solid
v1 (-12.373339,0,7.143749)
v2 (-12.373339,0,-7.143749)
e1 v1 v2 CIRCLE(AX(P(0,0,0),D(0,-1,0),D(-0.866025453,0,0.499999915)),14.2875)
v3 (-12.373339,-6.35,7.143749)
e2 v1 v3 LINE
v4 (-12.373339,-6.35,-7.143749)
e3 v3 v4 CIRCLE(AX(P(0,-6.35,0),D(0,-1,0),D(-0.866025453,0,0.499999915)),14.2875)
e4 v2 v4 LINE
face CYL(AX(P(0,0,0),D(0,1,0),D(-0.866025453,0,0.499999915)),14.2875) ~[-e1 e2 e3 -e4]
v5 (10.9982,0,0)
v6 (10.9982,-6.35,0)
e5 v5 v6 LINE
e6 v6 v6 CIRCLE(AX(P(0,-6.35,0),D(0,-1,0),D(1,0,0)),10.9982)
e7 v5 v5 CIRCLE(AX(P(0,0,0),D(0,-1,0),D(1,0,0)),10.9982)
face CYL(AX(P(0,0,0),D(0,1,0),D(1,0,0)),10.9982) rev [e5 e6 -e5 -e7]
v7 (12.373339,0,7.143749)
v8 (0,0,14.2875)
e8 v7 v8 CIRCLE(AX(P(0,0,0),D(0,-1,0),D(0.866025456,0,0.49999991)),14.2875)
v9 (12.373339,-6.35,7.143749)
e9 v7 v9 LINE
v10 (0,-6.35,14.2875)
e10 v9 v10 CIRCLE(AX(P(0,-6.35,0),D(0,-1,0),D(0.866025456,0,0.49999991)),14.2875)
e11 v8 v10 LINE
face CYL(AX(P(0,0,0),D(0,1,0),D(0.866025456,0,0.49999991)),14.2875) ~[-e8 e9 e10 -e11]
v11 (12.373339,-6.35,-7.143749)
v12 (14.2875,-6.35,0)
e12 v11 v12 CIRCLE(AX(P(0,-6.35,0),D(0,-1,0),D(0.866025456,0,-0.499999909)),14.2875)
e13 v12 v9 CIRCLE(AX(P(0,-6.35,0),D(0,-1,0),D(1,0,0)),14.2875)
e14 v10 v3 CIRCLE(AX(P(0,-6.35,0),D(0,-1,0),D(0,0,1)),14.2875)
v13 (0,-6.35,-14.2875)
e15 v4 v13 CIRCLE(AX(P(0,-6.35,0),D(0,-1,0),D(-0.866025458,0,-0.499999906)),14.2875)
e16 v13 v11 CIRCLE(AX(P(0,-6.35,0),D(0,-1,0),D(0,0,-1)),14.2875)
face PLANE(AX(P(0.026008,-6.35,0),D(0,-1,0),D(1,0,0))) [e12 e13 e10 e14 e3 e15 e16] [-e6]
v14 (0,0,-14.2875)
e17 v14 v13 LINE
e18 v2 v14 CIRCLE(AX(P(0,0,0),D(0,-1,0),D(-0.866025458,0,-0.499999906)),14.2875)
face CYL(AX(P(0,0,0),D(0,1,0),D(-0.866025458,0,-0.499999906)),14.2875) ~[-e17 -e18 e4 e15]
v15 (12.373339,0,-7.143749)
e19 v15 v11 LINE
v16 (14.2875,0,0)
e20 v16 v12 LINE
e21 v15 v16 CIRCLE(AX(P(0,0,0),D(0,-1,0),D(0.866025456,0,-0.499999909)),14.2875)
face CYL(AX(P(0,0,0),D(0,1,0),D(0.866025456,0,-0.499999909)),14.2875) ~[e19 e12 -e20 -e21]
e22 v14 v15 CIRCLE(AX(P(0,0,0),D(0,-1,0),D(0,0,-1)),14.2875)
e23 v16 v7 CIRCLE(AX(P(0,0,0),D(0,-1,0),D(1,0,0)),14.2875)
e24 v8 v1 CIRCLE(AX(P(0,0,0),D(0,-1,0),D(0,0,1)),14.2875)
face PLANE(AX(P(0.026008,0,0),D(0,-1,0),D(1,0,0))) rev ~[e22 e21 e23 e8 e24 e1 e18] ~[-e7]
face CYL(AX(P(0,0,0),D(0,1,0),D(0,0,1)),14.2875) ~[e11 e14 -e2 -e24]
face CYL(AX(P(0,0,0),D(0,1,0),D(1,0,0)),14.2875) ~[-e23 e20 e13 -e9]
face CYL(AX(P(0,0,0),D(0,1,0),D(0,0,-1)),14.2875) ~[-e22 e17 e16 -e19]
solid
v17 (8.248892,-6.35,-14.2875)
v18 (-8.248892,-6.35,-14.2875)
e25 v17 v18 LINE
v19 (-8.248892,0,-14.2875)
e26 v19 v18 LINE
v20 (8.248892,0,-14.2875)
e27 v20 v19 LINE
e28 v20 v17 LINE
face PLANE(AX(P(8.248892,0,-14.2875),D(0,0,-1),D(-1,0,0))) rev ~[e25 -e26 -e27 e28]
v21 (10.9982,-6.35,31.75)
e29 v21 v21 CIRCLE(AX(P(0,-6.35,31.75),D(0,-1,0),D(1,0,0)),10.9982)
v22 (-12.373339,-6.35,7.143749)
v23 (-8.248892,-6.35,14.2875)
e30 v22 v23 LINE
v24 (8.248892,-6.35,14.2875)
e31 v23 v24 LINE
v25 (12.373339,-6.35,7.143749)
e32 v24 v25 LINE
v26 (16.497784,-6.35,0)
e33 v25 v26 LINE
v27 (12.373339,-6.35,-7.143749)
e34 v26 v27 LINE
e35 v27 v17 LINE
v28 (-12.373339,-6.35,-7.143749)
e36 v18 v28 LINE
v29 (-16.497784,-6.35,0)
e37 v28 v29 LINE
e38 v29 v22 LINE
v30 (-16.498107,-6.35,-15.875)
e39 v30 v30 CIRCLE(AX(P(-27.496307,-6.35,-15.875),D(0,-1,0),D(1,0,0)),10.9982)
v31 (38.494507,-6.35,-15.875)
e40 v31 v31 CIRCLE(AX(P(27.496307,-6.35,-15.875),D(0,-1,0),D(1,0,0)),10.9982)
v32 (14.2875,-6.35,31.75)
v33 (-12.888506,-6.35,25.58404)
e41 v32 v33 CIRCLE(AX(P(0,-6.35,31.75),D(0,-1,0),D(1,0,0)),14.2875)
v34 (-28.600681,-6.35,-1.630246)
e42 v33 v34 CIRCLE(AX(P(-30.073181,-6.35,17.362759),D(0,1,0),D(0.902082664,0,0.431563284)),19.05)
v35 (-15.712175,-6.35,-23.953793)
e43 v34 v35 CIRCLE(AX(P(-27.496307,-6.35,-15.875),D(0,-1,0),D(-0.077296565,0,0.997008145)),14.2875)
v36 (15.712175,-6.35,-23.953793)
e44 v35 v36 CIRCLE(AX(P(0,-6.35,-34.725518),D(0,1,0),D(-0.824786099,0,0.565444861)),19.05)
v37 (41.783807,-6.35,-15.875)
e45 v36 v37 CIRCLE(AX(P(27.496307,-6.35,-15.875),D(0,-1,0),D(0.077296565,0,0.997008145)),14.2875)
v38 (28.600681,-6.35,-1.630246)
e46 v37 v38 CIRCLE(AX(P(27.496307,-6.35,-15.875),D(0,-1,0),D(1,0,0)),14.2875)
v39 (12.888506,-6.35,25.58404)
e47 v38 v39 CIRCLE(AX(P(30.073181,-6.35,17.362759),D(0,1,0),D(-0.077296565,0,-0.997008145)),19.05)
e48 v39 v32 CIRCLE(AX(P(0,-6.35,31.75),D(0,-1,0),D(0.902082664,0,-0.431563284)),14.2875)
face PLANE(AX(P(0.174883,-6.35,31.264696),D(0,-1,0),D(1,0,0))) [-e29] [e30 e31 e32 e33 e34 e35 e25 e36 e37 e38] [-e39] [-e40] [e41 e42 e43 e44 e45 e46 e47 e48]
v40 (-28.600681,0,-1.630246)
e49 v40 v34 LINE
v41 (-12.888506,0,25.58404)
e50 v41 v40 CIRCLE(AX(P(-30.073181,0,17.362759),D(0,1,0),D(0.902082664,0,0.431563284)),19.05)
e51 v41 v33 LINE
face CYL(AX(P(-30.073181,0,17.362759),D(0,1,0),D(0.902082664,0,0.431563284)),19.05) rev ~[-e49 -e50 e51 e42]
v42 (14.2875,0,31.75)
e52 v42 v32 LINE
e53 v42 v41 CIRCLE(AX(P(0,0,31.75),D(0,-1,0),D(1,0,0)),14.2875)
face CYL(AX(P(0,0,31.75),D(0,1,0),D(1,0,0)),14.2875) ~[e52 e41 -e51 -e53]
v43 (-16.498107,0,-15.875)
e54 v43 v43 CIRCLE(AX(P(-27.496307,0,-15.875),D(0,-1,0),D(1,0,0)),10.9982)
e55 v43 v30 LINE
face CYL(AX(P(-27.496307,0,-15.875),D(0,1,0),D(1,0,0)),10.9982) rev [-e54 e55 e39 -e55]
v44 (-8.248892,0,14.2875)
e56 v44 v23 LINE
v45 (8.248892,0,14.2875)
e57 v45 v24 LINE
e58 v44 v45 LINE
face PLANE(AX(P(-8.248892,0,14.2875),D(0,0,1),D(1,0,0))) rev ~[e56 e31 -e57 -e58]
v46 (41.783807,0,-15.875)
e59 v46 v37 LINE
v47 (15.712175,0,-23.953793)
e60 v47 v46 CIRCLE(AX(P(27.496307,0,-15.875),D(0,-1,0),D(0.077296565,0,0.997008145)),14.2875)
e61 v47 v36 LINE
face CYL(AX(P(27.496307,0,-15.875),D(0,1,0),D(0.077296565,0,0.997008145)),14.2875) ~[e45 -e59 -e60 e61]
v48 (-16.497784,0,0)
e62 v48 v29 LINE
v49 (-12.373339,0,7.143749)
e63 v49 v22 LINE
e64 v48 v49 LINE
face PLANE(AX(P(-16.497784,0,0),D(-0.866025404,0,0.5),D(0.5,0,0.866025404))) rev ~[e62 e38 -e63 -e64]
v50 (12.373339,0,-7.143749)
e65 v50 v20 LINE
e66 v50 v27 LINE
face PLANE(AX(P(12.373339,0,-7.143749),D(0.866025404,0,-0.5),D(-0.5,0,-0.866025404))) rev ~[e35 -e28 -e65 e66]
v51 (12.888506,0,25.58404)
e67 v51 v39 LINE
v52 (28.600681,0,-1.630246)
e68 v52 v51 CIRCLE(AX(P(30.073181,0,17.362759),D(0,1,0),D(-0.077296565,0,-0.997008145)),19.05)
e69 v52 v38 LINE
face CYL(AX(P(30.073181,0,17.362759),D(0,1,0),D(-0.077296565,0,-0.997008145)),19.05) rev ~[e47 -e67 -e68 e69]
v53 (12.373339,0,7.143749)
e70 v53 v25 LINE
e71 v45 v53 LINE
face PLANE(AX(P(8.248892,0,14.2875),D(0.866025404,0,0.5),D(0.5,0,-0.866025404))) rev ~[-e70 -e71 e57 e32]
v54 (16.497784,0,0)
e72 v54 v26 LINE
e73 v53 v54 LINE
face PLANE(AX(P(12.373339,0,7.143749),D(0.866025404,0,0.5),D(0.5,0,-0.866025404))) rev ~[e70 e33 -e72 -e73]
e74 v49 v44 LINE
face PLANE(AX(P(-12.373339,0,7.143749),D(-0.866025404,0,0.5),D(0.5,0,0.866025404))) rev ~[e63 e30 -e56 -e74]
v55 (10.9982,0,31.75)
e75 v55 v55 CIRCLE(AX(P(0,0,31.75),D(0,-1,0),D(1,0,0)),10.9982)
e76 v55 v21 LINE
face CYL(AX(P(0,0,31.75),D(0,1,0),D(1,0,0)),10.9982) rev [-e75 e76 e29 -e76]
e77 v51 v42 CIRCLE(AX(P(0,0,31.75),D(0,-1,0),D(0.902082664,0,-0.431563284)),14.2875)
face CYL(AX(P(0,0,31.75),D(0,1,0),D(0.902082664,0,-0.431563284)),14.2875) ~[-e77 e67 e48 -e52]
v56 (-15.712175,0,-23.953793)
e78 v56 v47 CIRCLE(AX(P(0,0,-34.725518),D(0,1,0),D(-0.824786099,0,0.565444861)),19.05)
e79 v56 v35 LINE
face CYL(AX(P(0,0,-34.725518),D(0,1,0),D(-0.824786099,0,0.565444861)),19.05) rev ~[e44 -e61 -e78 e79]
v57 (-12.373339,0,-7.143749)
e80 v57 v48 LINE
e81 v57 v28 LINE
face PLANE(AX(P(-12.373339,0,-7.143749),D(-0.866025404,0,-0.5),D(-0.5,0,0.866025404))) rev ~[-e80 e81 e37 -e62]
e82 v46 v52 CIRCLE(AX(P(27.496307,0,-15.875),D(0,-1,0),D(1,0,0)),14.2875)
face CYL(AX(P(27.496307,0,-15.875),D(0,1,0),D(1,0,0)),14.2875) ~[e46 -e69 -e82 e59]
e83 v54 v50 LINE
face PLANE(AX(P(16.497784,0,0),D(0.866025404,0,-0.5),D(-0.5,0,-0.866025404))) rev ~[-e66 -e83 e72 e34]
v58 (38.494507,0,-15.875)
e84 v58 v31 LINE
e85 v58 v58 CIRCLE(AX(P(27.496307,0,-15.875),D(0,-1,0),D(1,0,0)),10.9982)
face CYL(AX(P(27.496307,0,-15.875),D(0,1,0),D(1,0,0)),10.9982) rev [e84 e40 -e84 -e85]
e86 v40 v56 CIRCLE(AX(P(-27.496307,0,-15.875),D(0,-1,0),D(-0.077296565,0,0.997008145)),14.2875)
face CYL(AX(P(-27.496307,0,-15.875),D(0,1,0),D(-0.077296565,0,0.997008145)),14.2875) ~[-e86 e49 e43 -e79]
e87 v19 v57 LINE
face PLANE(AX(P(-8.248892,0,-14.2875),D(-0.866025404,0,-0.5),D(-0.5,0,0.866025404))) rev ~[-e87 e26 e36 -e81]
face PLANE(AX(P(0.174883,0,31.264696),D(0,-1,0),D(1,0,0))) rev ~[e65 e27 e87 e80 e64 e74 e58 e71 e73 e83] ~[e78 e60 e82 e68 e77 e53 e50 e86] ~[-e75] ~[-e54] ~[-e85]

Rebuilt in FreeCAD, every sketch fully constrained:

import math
import FreeCAD as App
import Part
import Sketcher

V = App.Vector
Q = App.Units.Quantity

doc = App.newDocument("Part")
body = doc.addObject("PartDesign::Body", "Body")

# Sketch on XZ plane
sketch1 = body.newObject("Sketcher::SketchObject", "Sketch")
sketch1.AttachmentSupport = (doc.getObject("XZ_Plane"), [""])
sketch1.MapMode = "FlatFace"
sketch1.addGeometry([
    Part.ArcOfCircle(Part.Circle(V(0, 32, 0), V(0, 0, 1), 14), math.radians(-26), math.radians(0)),  # 0
    Part.ArcOfCircle(Part.Circle(V(0, 32, 0), V(0, 0, 1), 14), math.radians(0), math.radians(206)),  # 1
    Part.ArcOfCircle(Part.Circle(V(-30, 17, 0), V(0, 0, 1), 19), math.radians(-86), math.radians(26)),  # 2
    Part.ArcOfCircle(Part.Circle(V(-27, -16, 0), V(0, 0, 1), 14), math.radians(94), math.radians(326)),  # 3
    Part.ArcOfCircle(Part.Circle(V(0, -35, 0), V(0, 0, 1), 19), math.radians(34), math.radians(146)),  # 4
    Part.ArcOfCircle(Part.Circle(V(27, -16, 0), V(0, 0, 1), 14), math.radians(-146), math.radians(0)),  # 5
    Part.ArcOfCircle(Part.Circle(V(27, -16, 0), V(0, 0, 1), 14), math.radians(0), math.radians(86)),  # 6
    Part.ArcOfCircle(Part.Circle(V(30, 17, 0), V(0, 0, 1), 19), math.radians(154), math.radians(266)),  # 7
    Part.Circle(V(-27, -16, 0), V(0, 0, 1), 11),  # 8
    Part.LineSegment(V(-8, 14, 0), V(8, 14, 0)),  # 9
    Part.LineSegment(V(8, 14, 0), V(12, 7, 0)),  # 10
    Part.LineSegment(V(12, 7, 0), V(16, 0, 0)),  # 11
    Part.LineSegment(V(16, 0, 0), V(12, -7, 0)),  # 12
    Part.LineSegment(V(12, -7, 0), V(8, -14, 0)),  # 13
    Part.LineSegment(V(8, -14, 0), V(-8, -14, 0)),  # 14
    Part.LineSegment(V(-8, -14, 0), V(-12, -7, 0)),  # 15
    Part.LineSegment(V(-12, -7, 0), V(-16, 0, 0)),  # 16
    Part.LineSegment(V(-16, 0, 0), V(-12, 7, 0)),  # 17
    Part.LineSegment(V(-12, 7, 0), V(-8, 14, 0)),  # 18
    Part.Circle(V(27, -16, 0), V(0, 0, 1), 11),  # 19
    Part.Circle(V(0, 32, 0), V(0, 0, 1), 11),  # 20
], False)
sketch1.addConstraint([
    Sketcher.Constraint("Tangent", 0, 2, 1, 1),
    Sketcher.Constraint("Tangent", 1, 2, 2, 2),
    Sketcher.Constraint("Tangent", 2, 1, 3, 1),
    Sketcher.Constraint("Tangent", 3, 2, 4, 2),
    Sketcher.Constraint("Tangent", 4, 1, 5, 1),
    Sketcher.Constraint("Tangent", 5, 2, 6, 1),
    Sketcher.Constraint("Tangent", 6, 2, 7, 2),
    Sketcher.Constraint("Tangent", 7, 1, 0, 1),
    Sketcher.Constraint("Coincident", 9, 2, 10, 1),
    Sketcher.Constraint("Coincident", 10, 2, 11, 1),
    Sketcher.Constraint("Coincident", 11, 2, 12, 1),
    Sketcher.Constraint("Coincident", 12, 2, 13, 1),
    Sketcher.Constraint("Coincident", 13, 2, 14, 1),
    Sketcher.Constraint("Coincident", 14, 2, 15, 1),
    Sketcher.Constraint("Coincident", 15, 2, 16, 1),
    Sketcher.Constraint("Coincident", 16, 2, 17, 1),
    Sketcher.Constraint("Coincident", 17, 2, 18, 1),
    Sketcher.Constraint("Coincident", 18, 2, 9, 1),
    Sketcher.Constraint("Horizontal", 9),
    Sketcher.Constraint("Horizontal", 14),
    Sketcher.Constraint("Coincident", 8, 3, 3, 3),
    Sketcher.Constraint("Coincident", 19, 3, 5, 3),
    Sketcher.Constraint("Coincident", 20, 3, 0, 3),
    Sketcher.Constraint("Equal", 0, 1),
    Sketcher.Constraint("Equal", 1, 3),
    Sketcher.Constraint("Equal", 2, 4),
    Sketcher.Constraint("Equal", 3, 5),
    Sketcher.Constraint("Equal", 5, 6),
    Sketcher.Constraint("Equal", 4, 7),
    Sketcher.Constraint("Equal", 8, 19),
    Sketcher.Constraint("Equal", 19, 20),
    Sketcher.Constraint("Symmetric", 9, 2, 14, 2, -1, 1),
    Sketcher.Constraint("Symmetric", 10, 2, 15, 2, -1, 1),
    Sketcher.Constraint("Symmetric", 11, 2, 16, 2, -1, 1),
    Sketcher.Constraint("Symmetric", 12, 2, 17, 2, -1, 1),
    Sketcher.Constraint("Symmetric", 3, 3, 5, 3, -2),
    Sketcher.Constraint("Symmetric", 12, 2, 15, 2, -2),
    Sketcher.Constraint("PointOnObject", 0, 3, -2),
    Sketcher.Constraint("PointOnObject", 11, 2, -1),
    Sketcher.Constraint("Parallel", 10, 11),
    Sketcher.Constraint("Parallel", 12, 13),
    Sketcher.Constraint("Parallel", 17, 18),
    Sketcher.Constraint("Horizontal", 20, 3, 0, 2),
    Sketcher.Constraint("Horizontal", 19, 3, 5, 2),
    Sketcher.Constraint("Radius", 2, Q("0.75 in")),
    Sketcher.Constraint("Diameter", 8, Q("0.866 in")),
    Sketcher.Constraint("Angle", 10, Q("-60 deg")),
    Sketcher.Constraint("Radius", 0, Q("0.5625 in")),
    Sketcher.Constraint("DistanceY", -1, 1, 0, 3, Q("1.25 in")),
    Sketcher.Constraint("DistanceY", 3, 3, -1, 1, Q("0.625 in")),
    Sketcher.Constraint("DistanceY", -1, 1, 9, 2, Q("0.5625 in")),
    Sketcher.Constraint("DistanceY", -1, 1, 10, 2, Q("0.2812499 in")),
    Sketcher.Constraint("DistanceX", 2, 3, 2, 1, Q("1.4725 mm")),
    Sketcher.Constraint("DistanceX", 9, 1, 9, 2, Q("16.497784 mm")),
])
pad1 = body.newObject("PartDesign::Pad", "Pad")
pad1.Profile = sketch1
pad1.Length = Q("0.25 in")
body2 = doc.addObject("PartDesign::Body", "Body001")

# Sketch on XZ plane
sketch2 = body2.newObject("Sketcher::SketchObject", "Sketch001")
sketch2.AttachmentSupport = (doc.getObject("XZ_Plane001"), [""])
sketch2.MapMode = "FlatFace"
sketch2.addGeometry([
    Part.ArcOfCircle(Part.Circle(V(0, 0, 0), V(0, 0, 1), 14), math.radians(-30), math.radians(0)),  # 0
    Part.ArcOfCircle(Part.Circle(V(0, 0, 0), V(0, 0, 1), 14), math.radians(0), math.radians(30)),  # 1
    Part.ArcOfCircle(Part.Circle(V(0, 0, 0), V(0, 0, 1), 14), math.radians(30), math.radians(90)),  # 2
    Part.ArcOfCircle(Part.Circle(V(0, 0, 0), V(0, 0, 1), 14), math.radians(90), math.radians(150)),  # 3
    Part.ArcOfCircle(Part.Circle(V(0, 0, 0), V(0, 0, 1), 14), math.radians(150), math.radians(210)),  # 4
    Part.ArcOfCircle(Part.Circle(V(0, 0, 0), V(0, 0, 1), 14), math.radians(-150), math.radians(-90)),  # 5
    Part.ArcOfCircle(Part.Circle(V(0, 0, 0), V(0, 0, 1), 14), math.radians(-90), math.radians(-30)),  # 6
    Part.Circle(V(0, 0, 0), V(0, 0, 1), 11),  # 7
], False)
sketch2.addConstraint([
    Sketcher.Constraint("Tangent", 0, 2, 1, 1),
    Sketcher.Constraint("Tangent", 1, 2, 2, 1),
    Sketcher.Constraint("Tangent", 2, 2, 3, 1),
    Sketcher.Constraint("Tangent", 3, 2, 4, 1),
    Sketcher.Constraint("Tangent", 4, 2, 5, 1),
    Sketcher.Constraint("Tangent", 5, 2, 6, 1),
    Sketcher.Constraint("Tangent", 6, 2, 0, 1),
    Sketcher.Constraint("Coincident", 0, 3, -1, 1),
    Sketcher.Constraint("Coincident", 2, 3, -1, 1),
    Sketcher.Constraint("Coincident", 4, 3, -1, 1),
    Sketcher.Constraint("Coincident", 7, 3, -1, 1),
    Sketcher.Constraint("PointOnObject", 0, 2, -1),
    Sketcher.Constraint("PointOnObject", 2, 2, -2),
    Sketcher.Constraint("PointOnObject", 5, 2, -2),
    Sketcher.Constraint("Horizontal", 1, 2, 3, 2),
    Sketcher.Constraint("Horizontal", 4, 2, 6, 2),
    Sketcher.Constraint("Vertical", 3, 2, 4, 2),
    Sketcher.Constraint("Diameter", 7, Q("0.866 in")),
    Sketcher.Constraint("Radius", 0, Q("0.5625 in")),
    Sketcher.Constraint("DistanceY", -1, 1, 1, 2, Q("0.2812499 in")),
])
pad2 = body2.newObject("PartDesign::Pad", "Pad001")
pad2.Profile = sketch2
pad2.Length = Q("0.25 in")

doc.recompute()
